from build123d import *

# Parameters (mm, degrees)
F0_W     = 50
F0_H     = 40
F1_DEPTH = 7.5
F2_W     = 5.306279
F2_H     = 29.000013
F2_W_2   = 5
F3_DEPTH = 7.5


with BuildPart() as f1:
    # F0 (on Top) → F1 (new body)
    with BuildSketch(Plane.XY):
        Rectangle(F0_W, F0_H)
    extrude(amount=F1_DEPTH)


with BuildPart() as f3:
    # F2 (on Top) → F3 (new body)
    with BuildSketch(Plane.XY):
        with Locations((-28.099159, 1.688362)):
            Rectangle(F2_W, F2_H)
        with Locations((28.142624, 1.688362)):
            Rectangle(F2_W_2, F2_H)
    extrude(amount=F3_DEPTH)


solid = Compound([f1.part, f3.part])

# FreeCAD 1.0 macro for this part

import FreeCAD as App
import Part
import Sketcher
from FreeCAD import Vector


def add_polygon(sketch, points):
    """Adds a closed chain of lines whose ends are joined by coincident constraints."""
    first, n = sketch.GeometryCount, len(points)
    for a, b in zip(points, points[1:] + points[:1]):
        sketch.addGeometry(Part.LineSegment(App.Vector(*a, 0), App.Vector(*b, 0)), False)
    for i in range(n):
        sketch.addConstraint(Sketcher.Constraint("Coincident", first + i, 2, first + (i + 1) % n, 1))

doc = App.newDocument("Part")
params = doc.addObject("Spreadsheet::Sheet", "Params")
for row, (alias, value) in enumerate([
    ("sketch1_width", "50 mm"),
    ("sketch1_height", "40 mm"),
    ("pad1_length", "7.5 mm"),
    ("sketch2_width", "5 mm"),
    ("pad2_length", "7.5 mm"),
], start=1):
    params.set(f"A{row}", alias)
    params.set(f"B{row}", "=" + value)
    params.setAlias(f"B{row}", alias)

body = doc.addObject("PartDesign::Body", "Body")

# Sketch on XY plane
sketch1 = body.newObject("Sketcher::SketchObject", "Sketch")
sketch1.AttachmentSupport = (doc.getObject("XY_Plane"), [""])
sketch1.MapMode = "FlatFace"
add_polygon(sketch1, [(-25, 20), (-25, -20), (25, -20), (25, 20)])  # lines 0-3
sketch1.addConstraint([
    Sketcher.Constraint("Vertical", 0),
    Sketcher.Constraint("Horizontal", 1),
    Sketcher.Constraint("Vertical", 2),
    Sketcher.Constraint("Horizontal", 3),
    Sketcher.Constraint("Symmetric", 0, 2, 2, 2, -1, 1),
    Sketcher.Constraint("DistanceX", 1, 1, 1, 2, 50.0),
    Sketcher.Constraint("DistanceY", 0, 2, 0, 1, 40.0),
])
sketch1.setExpression("Constraints[9]", "Params.sketch1_width")
sketch1.setExpression("Constraints[10]", "Params.sketch1_height")
pad1 = body.newObject("PartDesign::Pad", "Pad")
pad1.Profile = sketch1
pad1.setExpression("Length", "Params.pad1_length")
body2 = doc.addObject("PartDesign::Body", "Body001")
body2.AllowCompound = True

# Sketch on XY plane
sketch2 = body2.newObject("Sketcher::SketchObject", "Sketch001")
sketch2.AttachmentSupport = (doc.getObject("XY_Plane001"), [""])
sketch2.MapMode = "FlatFace"
add_polygon(sketch2, [(-31, 16), (-31, -13), (-25, -13), (-25, 16)])  # lines 0-3
add_polygon(sketch2, [(26, 16), (26, -13), (31, -13), (31, 16)])  # lines 4-7
sketch2.addConstraint([
    Sketcher.Constraint("Vertical", 0),
    Sketcher.Constraint("Horizontal", 1),
    Sketcher.Constraint("Vertical", 2),
    Sketcher.Constraint("Horizontal", 3),
    Sketcher.Constraint("Vertical", 4),
    Sketcher.Constraint("Horizontal", 5),
    Sketcher.Constraint("Vertical", 6),
    Sketcher.Constraint("Horizontal", 7),
    Sketcher.Constraint("Horizontal", 1, 2, 4, 2),
    Sketcher.Constraint("Horizontal", 3, 2, 6, 2),
    Sketcher.Constraint("DistanceX", 5, 1, 5, 2, 5.0),
    Sketcher.Constraint("DistanceX", 1, 1, 1, 2, 5.306279),
    Sketcher.Constraint("DistanceX", 0, 2, -1, 1, 30.752298),
    Sketcher.Constraint("DistanceY", 0, 2, 0, 1, 29.000013),
    Sketcher.Constraint("DistanceY", -1, 1, 2, 2, 16.188368),
    Sketcher.Constraint("DistanceX", -1, 1, 4, 2, 25.642624),
])
sketch2.setExpression("Constraints[18]", "Params.sketch2_width")
pad2 = body2.newObject("PartDesign::Pad", "Pad001")
pad2.Profile = sketch2
pad2.setExpression("Length", "Params.pad2_length")

doc.recompute()
